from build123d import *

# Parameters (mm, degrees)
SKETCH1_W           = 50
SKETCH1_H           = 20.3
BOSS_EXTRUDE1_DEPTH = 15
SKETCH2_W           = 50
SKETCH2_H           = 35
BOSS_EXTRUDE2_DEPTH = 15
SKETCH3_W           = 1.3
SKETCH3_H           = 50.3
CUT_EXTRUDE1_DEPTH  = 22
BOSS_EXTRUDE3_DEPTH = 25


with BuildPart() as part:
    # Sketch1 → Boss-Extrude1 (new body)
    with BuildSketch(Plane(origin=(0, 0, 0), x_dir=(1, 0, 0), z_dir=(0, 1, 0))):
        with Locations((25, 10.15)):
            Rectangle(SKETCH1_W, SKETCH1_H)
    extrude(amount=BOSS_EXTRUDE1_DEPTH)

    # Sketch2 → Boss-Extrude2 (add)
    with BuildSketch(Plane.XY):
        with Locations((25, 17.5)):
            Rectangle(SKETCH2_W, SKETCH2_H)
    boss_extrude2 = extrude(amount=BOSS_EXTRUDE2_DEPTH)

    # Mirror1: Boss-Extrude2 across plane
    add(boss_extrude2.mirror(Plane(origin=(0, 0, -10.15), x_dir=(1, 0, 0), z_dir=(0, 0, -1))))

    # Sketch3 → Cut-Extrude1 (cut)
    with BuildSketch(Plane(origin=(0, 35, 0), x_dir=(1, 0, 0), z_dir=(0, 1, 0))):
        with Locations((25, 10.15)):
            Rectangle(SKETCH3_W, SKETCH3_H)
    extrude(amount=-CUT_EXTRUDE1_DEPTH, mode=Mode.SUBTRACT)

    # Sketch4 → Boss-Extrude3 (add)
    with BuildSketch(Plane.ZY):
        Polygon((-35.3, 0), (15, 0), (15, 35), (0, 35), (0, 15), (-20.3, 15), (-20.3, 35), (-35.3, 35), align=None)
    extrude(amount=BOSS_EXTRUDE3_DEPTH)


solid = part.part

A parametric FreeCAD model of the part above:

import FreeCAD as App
import Part
import Sketcher
from FreeCAD import Vector


def add_polygon(sketch, points):
    """Adds a closed chain of lines whose ends are joined by coincident constraints."""
    first, n = sketch.GeometryCount, len(points)
    for a, b in zip(points, points[1:] + points[:1]):
        sketch.addGeometry(Part.LineSegment(App.Vector(*a, 0), App.Vector(*b, 0)), False)
    for i in range(n):
        sketch.addConstraint(Sketcher.Constraint("Coincident", first + i, 2, first + (i + 1) % n, 1))

doc = App.newDocument("Part")
body = doc.addObject("PartDesign::Body", "Body")

# Sketch on XZ plane
sketch1 = doc.addObject("Sketcher::SketchObject", "Sketch")
body.addObject(sketch1)
sketch1.AttachmentSupport = (doc.XZ_Plane, [""])
sketch1.MapMode = "FlatFace"
add_polygon(sketch1, [(0, -20), (0, 0), (50, 0), (50, -20)])  # lines 0-3
sketch1.addConstraint(Sketcher.Constraint("Vertical", 0))
sketch1.addConstraint(Sketcher.Constraint("Horizontal", 1))
sketch1.addConstraint(Sketcher.Constraint("Vertical", 2))
sketch1.addConstraint(Sketcher.Constraint("Horizontal", 3))
sketch1.addConstraint(Sketcher.Constraint("Coincident", 0, 2, -1, 1))
sketch1.addConstraint(Sketcher.Constraint("DistanceX", 1, 1, 1, 2, 50.0))
sketch1.addConstraint(Sketcher.Constraint("DistanceY", 0, 1, 0, 2, 20.3))
pad1 = doc.addObject("PartDesign::Pad", "Pad")
body.addObject(pad1)
pad1.Profile = sketch1
pad1.Length = 15
pad1.Reversed = True

# Sketch on XY plane
sketch2 = doc.addObject("Sketcher::SketchObject", "Sketch001")
body.addObject(sketch2)
sketch2.AttachmentSupport = (doc.XY_Plane, [""])
sketch2.MapMode = "FlatFace"
add_polygon(sketch2, [(0, 35), (0, 0), (50, 0), (50, 35)])  # lines 0-3
sketch2.addConstraint(Sketcher.Constraint("Vertical", 0))
sketch2.addConstraint(Sketcher.Constraint("Horizontal", 1))
sketch2.addConstraint(Sketcher.Constraint("Vertical", 2))
sketch2.addConstraint(Sketcher.Constraint("Horizontal", 3))
sketch2.addConstraint(Sketcher.Constraint("Coincident", 0, 2, -1, 1))
sketch2.addConstraint(Sketcher.Constraint("DistanceX", 1, 1, 1, 2, 50.0))
sketch2.addConstraint(Sketcher.Constraint("DistanceY", 0, 2, 0, 1, 35.0))
pad2 = doc.addObject("PartDesign::Pad", "Pad001")
body.addObject(pad2)
pad2.Profile = sketch2
pad2.Length = 15
doc.recompute()

datumplane = doc.addObject("PartDesign::Plane", "DatumPlane")
body.addObject(datumplane)
datumplane.AttachmentSupport = (doc.XY_Plane, [""])
datumplane.MapMode = "FlatFace"
datumplane.AttachmentOffset = App.Placement(Vector(0, 0, -10.15), App.Rotation())
mirrored = doc.addObject("PartDesign::Mirrored", "Mirrored")
body.addObject(mirrored)
mirrored.Originals = [pad2]
mirrored.MirrorPlane = (datumplane, [""])
body.Tip = mirrored

# Sketch on XZ plane
sketch3 = doc.addObject("Sketcher::SketchObject", "Sketch002")
body.addObject(sketch3)
sketch3.AttachmentSupport = (doc.XZ_Plane, [""])
sketch3.MapMode = "FlatFace"
sketch3.AttachmentOffset = App.Placement(Vector(0, 0, -35), App.Rotation())
add_polygon(sketch3, [(24.4, -35.3), (24.4, 15), (25.6, 15), (25.6, -35.3)])  # lines 0-3
sketch3.addConstraint(Sketcher.Constraint("Vertical", 0))
sketch3.addConstraint(Sketcher.Constraint("Horizontal", 1))
sketch3.addConstraint(Sketcher.Constraint("Vertical", 2))
sketch3.addConstraint(Sketcher.Constraint("Horizontal", 3))
sketch3.addConstraint(Sketcher.Constraint("DistanceX", 1, 1, 1, 2, 1.3))
sketch3.addConstraint(Sketcher.Constraint("DistanceY", 0, 1, 0, 2, 50.3))
sketch3.addConstraint(Sketcher.Constraint("DistanceY", -1, 1, 0, 2, 15.0))
sketch3.addConstraint(Sketcher.Constraint("DistanceX", -1, 1, 0, 2, 24.35))
pocket1 = doc.addObject("PartDesign::Pocket", "Pocket")
body.addObject(pocket1)
pocket1.Profile = sketch3
pocket1.Length = 22
pocket1.Reversed = True

# Sketch on YZ plane
sketch4 = doc.addObject("Sketcher::SketchObject", "Sketch003")
body.addObject(sketch4)
sketch4.AttachmentSupport = (doc.YZ_Plane, [""])
sketch4.MapMode = "FlatFace"
add_polygon(sketch4, [(0, -35), (0, 15), (35, 15), (35, 0), (15, 0), (15, -20), (35, -20), (35, -35)])  # lines 0-7
sketch4.addConstraint(Sketcher.Constraint("Vertical", 0))
sketch4.addConstraint(Sketcher.Constraint("Horizontal", 1))
sketch4.addConstraint(Sketcher.Constraint("Vertical", 2))
sketch4.addConstraint(Sketcher.Constraint("Horizontal", 3))
sketch4.addConstraint(Sketcher.Constraint("Vertical", 4))
sketch4.addConstraint(Sketcher.Constraint("Horizontal", 5))
sketch4.addConstraint(Sketcher.Constraint("Vertical", 6))
sketch4.addConstraint(Sketcher.Constraint("Horizontal", 7))
sketch4.addConstraint(Sketcher.Constraint("PointOnObject", 0, 2, -2))
sketch4.addConstraint(Sketcher.Constraint("PointOnObject", 2, 2, -1))
sketch4.addConstraint(Sketcher.Constraint("Vertical", 2, 2, 5, 2))
sketch4.addConstraint(Sketcher.Constraint("Equal", 2, 6))
sketch4.addConstraint(Sketcher.Constraint("DistanceX", 1, 1, 1, 2, 35.0))
sketch4.addConstraint(Sketcher.Constraint("DistanceX", 3, 2, 3, 1, 20.0))
sketch4.addConstraint(Sketcher.Constraint("DistanceY", 2, 2, 2, 1, 15.0))
sketch4.addConstraint(Sketcher.Constraint("DistanceY", 0, 1, 0, 2, 50.3))
pad3 = doc.addObject("PartDesign::Pad", "Pad002")
body.addObject(pad3)
pad3.Profile = sketch4
pad3.Length = 25
pad3.Reversed = True

doc.recompute()
